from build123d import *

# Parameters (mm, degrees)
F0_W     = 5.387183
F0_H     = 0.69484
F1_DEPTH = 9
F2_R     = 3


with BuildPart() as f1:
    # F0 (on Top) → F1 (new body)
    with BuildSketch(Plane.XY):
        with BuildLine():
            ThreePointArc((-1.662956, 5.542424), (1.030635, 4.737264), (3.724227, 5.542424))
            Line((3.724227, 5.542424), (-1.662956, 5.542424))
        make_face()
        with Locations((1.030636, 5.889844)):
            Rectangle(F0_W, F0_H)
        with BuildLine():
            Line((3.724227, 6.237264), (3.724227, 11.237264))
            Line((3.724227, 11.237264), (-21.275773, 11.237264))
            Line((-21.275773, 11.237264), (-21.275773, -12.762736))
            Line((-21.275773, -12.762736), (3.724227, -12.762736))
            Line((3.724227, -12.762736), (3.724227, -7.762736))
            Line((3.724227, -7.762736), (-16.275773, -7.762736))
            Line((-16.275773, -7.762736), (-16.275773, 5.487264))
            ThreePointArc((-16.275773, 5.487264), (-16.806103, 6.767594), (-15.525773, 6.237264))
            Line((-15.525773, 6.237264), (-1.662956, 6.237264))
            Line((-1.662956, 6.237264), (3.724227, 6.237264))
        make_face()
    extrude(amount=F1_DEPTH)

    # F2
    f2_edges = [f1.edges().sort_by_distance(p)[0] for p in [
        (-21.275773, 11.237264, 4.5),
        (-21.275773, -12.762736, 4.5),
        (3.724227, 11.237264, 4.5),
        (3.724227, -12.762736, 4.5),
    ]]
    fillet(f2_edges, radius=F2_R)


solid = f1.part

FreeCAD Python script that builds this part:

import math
import FreeCAD as App
import Part
import Sketcher
from FreeCAD import Vector
Q = App.Units.Quantity


def edges_at(feature, points):
    """Names of the edges that pass closest to the given points."""
    edges = feature.Shape.Edges
    near = lambda p: min(range(len(edges)), key=lambda i: edges[i].distToShape(Part.Vertex(*p))[0])
    return sorted({f"Edge{near(p) + 1}" for p in points})

doc = App.newDocument("Part")
body = doc.addObject("PartDesign::Body", "Body")

sketch1 = doc.addObject("Sketcher::SketchObject", "Sketch")
body.addObject(sketch1)
sketch1.AttachmentSupport = (doc.XY_Plane, [""])
sketch1.MapMode = "FlatFace"
sketch1.addGeometry([
    Part.ArcOfCircle(Part.Circle(Vector(1.030636, 9.64543, 0), Vector(0, 0, 1), 4.908166), math.radians(-123.284583), math.radians(-56.715412)),
    Part.LineSegment(Vector(3.724228, 5.542424, 0), Vector(3.724227, 5.542424, 0)),
    Part.LineSegment(Vector(3.724228, 5.542424, 0), Vector(3.724228, 6.237264, 0)),
    Part.LineSegment(Vector(3.724227, 6.237264, 0), Vector(3.724228, 6.237264, 0)),
    Part.LineSegment(Vector(3.724227, 6.237264, 0), Vector(3.724227, 11.237264, 0)),
    Part.LineSegment(Vector(3.724227, 11.237264, 0), Vector(-21.275773, 11.237264, 0)),
    Part.LineSegment(Vector(-21.275773, 11.237264, 0), Vector(-21.275773, -12.762736, 0)),
    Part.LineSegment(Vector(-21.275773, -12.762736, 0), Vector(3.724227, -12.762736, 0)),
    Part.LineSegment(Vector(3.724227, -12.762736, 0), Vector(3.724227, -7.762736, 0)),
    Part.LineSegment(Vector(3.724227, -7.762736, 0), Vector(-16.275773, -7.762736, 0)),
    Part.LineSegment(Vector(-16.275773, -7.762736, 0), Vector(-16.275773, 5.487264, 0)),
    Part.ArcOfCircle(Part.Circle(Vector(-16.275773, 6.237264, 0), Vector(0, 0, 1), 0.75), math.radians(0.000004), math.radians(269.999996)),
    Part.LineSegment(Vector(-15.525773, 6.237264, 0), Vector(-1.662956, 6.237264, 0)),
    Part.LineSegment(Vector(-1.662956, 6.237264, 0), Vector(-1.662956, 5.542424, 0)),
], False)
sketch1.addConstraint([
    Sketcher.Constraint("Coincident", 0, 2, 1, 1),
    Sketcher.Constraint("Coincident", 1, 2, 2, 1),
    Sketcher.Constraint("Coincident", 2, 2, 3, 1),
    Sketcher.Constraint("Coincident", 3, 2, 4, 1),
    Sketcher.Constraint("Coincident", 4, 2, 5, 1),
    Sketcher.Constraint("Coincident", 5, 2, 6, 1),
    Sketcher.Constraint("Coincident", 6, 2, 7, 1),
    Sketcher.Constraint("Coincident", 7, 2, 8, 1),
    Sketcher.Constraint("Coincident", 8, 2, 9, 1),
    Sketcher.Constraint("Coincident", 9, 2, 10, 1),
    Sketcher.Constraint("Coincident", 10, 2, 11, 2),
    Sketcher.Constraint("Coincident", 11, 1, 12, 1),
    Sketcher.Constraint("Coincident", 12, 2, 13, 1),
    Sketcher.Constraint("Coincident", 13, 2, 0, 1),
    Sketcher.Constraint("Horizontal", 1),
    Sketcher.Constraint("Vertical", 2),
    Sketcher.Constraint("Horizontal", 3),
    Sketcher.Constraint("Vertical", 4),
    Sketcher.Constraint("Horizontal", 5),
    Sketcher.Constraint("Vertical", 6),
    Sketcher.Constraint("Horizontal", 7),
    Sketcher.Constraint("Vertical", 8),
    Sketcher.Constraint("Horizontal", 9),
    Sketcher.Constraint("Vertical", 10),
    Sketcher.Constraint("Horizontal", 12),
    Sketcher.Constraint("Vertical", 13),
    Sketcher.Constraint("DistanceX", 5, 2, 5, 1, Q("25 mm")),
    Sketcher.Constraint("DistanceX", 7, 1, 7, 2, Q("25 mm")),
    Sketcher.Constraint("DistanceX", 9, 2, 9, 1, Q("20 mm")),
    Sketcher.Constraint("DistanceY", 4, 1, 4, 2, Q("5 mm")),
    Sketcher.Constraint("DistanceY", 6, 2, 6, 1, Q("24 mm")),
    Sketcher.Constraint("DistanceY", 8, 1, 8, 2, Q("5 mm")),
    Sketcher.Constraint("Radius", 11, Q("0.75 mm")),
    Sketcher.Constraint("DistanceX", 11, 3, 0, 2, Q("20 mm")),
    Sketcher.Constraint("DistanceX", 11, 3, 1, 2, Q("20 mm")),
    Sketcher.Constraint("DistanceX", 11, 3, 3, 2, Q("20 mm")),
    Sketcher.Constraint("DistanceY", 11, 3, 5, 2, Q("5 mm")),
    Sketcher.Constraint("DistanceY", 11, 1, 5, 2, Q("5 mm")),
    Sketcher.Constraint("Radius", 0, Q("4.908166 mm")),
    Sketcher.Constraint("DistanceY", 2, 1, 2, 2, Q("0.69484 mm")),
    Sketcher.Constraint("DistanceY", 13, 2, 13, 1, Q("0.69484 mm")),
    Sketcher.Constraint("DistanceX", 12, 1, 12, 2, Q("13.862817 mm")),
    Sketcher.Constraint("DistanceY", -1, 1, 0, 3, Q("9.64543 mm")),
    Sketcher.Constraint("DistanceX", -1, 1, 0, 3, Q("1.030636 mm")),
])
pad1 = doc.addObject("PartDesign::Pad", "Pad")
body.addObject(pad1)
pad1.Profile = sketch1
pad1.Length = 9
doc.recompute()

fillet = doc.addObject("PartDesign::Fillet", "Fillet")
body.addObject(fillet)
fillet.Base = (pad1, edges_at(pad1, [
    (-21.276, 11.237, 4.5),
    (-21.276, -12.763, 4.5),
    (3.724, 11.237, 4.5),
    (3.724, -12.763, 4.5),
]))
fillet.Radius = 3

doc.recompute()
